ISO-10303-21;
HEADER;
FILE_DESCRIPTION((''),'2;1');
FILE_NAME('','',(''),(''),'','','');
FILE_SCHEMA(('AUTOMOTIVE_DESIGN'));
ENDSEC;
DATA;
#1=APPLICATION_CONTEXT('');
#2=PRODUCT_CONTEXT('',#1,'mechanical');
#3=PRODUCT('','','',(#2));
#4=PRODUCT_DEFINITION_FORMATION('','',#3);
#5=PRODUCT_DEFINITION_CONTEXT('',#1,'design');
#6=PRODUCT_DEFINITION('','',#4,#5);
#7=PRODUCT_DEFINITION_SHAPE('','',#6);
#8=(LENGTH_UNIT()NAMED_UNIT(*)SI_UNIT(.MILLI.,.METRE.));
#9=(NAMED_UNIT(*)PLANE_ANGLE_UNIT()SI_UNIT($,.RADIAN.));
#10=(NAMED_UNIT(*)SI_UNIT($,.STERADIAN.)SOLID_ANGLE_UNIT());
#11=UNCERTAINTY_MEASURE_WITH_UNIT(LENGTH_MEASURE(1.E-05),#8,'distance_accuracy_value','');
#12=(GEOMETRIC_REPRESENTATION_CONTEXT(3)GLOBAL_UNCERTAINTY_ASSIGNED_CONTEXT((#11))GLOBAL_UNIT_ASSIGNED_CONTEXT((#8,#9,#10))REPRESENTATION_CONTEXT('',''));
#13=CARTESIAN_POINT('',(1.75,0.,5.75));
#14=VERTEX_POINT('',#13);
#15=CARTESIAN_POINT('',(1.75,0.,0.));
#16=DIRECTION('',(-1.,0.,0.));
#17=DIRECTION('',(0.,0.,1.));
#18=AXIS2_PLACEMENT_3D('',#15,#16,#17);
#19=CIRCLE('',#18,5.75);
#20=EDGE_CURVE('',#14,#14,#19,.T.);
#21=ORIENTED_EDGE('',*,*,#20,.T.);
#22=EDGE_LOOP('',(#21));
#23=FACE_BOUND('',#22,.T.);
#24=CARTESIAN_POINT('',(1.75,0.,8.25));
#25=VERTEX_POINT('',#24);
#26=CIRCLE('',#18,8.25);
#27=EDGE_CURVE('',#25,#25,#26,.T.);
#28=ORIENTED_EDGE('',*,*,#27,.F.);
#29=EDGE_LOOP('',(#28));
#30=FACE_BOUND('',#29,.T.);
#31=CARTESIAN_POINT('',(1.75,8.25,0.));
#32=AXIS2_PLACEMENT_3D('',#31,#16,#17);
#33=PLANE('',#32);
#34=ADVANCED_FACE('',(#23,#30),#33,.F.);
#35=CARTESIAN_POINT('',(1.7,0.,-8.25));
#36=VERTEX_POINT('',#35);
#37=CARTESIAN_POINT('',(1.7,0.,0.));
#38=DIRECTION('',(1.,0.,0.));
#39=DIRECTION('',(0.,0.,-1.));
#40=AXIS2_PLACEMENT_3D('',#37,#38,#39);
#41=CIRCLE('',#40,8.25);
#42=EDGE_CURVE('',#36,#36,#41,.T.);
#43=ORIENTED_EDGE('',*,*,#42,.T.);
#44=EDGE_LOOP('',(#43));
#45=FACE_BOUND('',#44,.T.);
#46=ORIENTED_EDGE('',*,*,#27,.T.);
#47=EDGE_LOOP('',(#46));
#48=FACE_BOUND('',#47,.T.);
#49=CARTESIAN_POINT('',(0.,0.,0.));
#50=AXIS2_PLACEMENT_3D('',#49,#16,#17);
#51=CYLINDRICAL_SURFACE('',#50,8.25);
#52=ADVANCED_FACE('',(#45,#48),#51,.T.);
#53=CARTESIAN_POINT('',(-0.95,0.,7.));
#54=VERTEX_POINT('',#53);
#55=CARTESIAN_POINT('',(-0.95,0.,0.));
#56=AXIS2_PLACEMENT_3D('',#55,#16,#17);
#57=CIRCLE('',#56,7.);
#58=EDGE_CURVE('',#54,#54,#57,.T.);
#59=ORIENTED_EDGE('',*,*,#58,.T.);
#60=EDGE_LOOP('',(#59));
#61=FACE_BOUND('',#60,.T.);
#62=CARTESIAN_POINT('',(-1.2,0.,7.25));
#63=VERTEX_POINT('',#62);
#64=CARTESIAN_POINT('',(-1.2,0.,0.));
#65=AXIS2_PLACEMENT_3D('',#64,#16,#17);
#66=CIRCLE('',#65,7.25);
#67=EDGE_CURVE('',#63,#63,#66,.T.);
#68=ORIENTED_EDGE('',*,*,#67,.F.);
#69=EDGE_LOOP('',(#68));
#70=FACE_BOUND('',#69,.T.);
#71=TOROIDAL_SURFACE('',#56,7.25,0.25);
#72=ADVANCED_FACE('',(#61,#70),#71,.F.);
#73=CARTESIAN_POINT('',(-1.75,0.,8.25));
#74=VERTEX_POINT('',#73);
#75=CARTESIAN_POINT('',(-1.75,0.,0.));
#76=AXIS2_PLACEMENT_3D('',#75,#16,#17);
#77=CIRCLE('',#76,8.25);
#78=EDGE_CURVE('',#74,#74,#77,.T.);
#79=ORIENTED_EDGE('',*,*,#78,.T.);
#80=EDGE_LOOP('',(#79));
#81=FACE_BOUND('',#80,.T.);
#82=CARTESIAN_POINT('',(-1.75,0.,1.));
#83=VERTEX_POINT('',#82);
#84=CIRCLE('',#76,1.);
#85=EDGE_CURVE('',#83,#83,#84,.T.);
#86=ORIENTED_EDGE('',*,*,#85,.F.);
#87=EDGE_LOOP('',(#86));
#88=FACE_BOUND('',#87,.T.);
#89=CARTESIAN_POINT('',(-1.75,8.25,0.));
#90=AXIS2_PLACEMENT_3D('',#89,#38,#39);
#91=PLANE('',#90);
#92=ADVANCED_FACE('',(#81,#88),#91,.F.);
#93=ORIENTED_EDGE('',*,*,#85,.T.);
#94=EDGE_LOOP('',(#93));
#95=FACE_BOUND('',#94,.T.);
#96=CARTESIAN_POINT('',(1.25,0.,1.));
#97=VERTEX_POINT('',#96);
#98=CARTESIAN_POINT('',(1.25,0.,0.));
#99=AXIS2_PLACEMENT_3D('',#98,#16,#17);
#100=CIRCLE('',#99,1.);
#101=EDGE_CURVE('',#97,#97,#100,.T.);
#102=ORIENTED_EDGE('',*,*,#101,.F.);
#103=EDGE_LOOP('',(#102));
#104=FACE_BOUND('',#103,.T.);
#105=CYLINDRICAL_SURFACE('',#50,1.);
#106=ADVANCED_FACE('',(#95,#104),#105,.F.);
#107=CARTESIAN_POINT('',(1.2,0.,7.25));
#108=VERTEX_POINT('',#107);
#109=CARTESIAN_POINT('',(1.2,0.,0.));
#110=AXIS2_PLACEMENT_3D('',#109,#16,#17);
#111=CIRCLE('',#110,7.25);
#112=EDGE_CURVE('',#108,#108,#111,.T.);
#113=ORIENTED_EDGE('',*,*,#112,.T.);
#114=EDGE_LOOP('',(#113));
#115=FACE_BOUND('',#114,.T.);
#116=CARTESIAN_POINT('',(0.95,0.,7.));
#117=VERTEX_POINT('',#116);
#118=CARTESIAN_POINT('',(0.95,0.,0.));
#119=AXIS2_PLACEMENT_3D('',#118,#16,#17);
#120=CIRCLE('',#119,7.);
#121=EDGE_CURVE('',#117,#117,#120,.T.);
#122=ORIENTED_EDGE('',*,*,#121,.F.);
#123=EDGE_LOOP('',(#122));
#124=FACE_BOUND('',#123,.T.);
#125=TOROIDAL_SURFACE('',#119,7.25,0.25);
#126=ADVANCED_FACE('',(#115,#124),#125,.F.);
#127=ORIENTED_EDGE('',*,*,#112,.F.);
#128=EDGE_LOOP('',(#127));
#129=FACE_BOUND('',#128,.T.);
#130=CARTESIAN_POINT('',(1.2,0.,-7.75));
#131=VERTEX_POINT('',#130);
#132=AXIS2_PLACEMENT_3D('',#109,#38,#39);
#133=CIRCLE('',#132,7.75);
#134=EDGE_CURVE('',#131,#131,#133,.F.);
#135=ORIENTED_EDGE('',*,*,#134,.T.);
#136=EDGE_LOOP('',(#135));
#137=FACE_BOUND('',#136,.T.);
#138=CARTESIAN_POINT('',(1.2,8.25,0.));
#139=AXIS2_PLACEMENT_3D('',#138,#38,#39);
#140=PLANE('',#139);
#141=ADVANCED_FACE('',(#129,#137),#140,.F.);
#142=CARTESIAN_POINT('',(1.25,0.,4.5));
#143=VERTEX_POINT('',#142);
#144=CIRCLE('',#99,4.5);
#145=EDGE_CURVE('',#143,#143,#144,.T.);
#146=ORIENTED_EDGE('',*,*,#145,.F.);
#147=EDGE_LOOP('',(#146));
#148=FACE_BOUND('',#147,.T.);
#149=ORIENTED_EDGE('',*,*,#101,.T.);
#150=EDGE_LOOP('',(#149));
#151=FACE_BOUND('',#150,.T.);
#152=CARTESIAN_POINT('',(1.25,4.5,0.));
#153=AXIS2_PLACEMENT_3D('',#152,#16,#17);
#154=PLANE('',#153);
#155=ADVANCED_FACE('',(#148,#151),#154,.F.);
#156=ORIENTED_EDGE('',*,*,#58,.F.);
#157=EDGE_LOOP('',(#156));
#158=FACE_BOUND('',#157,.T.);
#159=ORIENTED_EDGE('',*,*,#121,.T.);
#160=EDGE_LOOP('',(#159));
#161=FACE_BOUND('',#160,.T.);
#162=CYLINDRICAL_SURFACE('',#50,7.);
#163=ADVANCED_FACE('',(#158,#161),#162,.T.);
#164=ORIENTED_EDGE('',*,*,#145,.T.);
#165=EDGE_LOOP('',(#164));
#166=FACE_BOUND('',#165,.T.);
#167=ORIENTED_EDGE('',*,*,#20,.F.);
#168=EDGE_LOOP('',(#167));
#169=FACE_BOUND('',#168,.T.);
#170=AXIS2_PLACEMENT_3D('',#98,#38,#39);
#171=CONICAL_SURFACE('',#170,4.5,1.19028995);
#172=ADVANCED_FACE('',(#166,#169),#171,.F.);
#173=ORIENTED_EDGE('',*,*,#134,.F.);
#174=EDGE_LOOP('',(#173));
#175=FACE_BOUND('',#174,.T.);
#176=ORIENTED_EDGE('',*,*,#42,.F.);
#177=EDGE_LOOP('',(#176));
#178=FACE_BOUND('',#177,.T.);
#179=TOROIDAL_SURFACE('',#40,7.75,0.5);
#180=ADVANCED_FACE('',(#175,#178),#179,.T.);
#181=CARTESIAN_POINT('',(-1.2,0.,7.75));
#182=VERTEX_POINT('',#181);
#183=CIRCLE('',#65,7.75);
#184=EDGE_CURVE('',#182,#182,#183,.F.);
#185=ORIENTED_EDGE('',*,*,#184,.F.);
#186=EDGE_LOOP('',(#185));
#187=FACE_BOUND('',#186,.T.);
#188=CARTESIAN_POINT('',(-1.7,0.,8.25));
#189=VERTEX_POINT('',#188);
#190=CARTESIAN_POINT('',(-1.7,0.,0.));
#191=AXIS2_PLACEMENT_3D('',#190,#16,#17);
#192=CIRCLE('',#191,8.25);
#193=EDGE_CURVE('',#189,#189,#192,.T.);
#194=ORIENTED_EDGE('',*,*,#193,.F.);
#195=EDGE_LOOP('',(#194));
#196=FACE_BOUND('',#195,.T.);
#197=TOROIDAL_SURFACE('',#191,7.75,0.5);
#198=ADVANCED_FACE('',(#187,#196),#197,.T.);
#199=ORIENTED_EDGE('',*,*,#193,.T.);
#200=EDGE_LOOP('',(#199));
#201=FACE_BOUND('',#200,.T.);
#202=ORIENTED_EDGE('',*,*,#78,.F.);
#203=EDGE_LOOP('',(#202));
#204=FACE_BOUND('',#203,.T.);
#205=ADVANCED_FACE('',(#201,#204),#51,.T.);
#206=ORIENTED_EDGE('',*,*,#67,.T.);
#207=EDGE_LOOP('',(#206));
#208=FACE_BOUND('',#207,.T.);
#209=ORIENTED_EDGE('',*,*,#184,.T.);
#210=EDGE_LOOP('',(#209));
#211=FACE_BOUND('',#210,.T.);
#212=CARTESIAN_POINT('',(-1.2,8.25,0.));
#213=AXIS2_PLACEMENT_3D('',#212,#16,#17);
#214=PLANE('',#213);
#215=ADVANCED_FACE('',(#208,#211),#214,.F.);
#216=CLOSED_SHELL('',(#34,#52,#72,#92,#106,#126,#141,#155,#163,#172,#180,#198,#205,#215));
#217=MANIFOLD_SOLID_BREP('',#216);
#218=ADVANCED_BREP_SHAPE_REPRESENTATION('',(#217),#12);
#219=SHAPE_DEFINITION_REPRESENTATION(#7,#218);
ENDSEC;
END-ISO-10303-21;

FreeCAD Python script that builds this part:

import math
import FreeCAD as App
import Part
import Sketcher


def edges_at(feature, points):
    """Names of the edges that pass closest to the given points."""
    edges = feature.Shape.Edges
    near = lambda p: min(range(len(edges)), key=lambda i: edges[i].distToShape(Part.Vertex(*p))[0])
    return sorted({f"Edge{near(p) + 1}" for p in points})

doc = App.newDocument("Part")
body = doc.addObject("PartDesign::Body", "Body")

sketch1 = body.newObject("Sketcher::SketchObject", "Sketch")
sketch1.AttachmentSupport = (doc.getObject("XY_Plane"), [""])
sketch1.MapMode = "FlatFace"
sketch1.addGeometry([
    Part.LineSegment(App.Vector(1.75, 8.25, 0), App.Vector(1.2, 8.25, 0)),
    Part.LineSegment(App.Vector(1.2, 8.25, 0), App.Vector(1.2, 7.25, 0)),
    Part.ArcOfCircle(Part.Circle(App.Vector(0.95, 7.25, 0), App.Vector(0, 0, 1), 0.25), math.radians(-90), math.radians(0)),
    Part.LineSegment(App.Vector(0.95, 7, 0), App.Vector(-0.95, 7, 0)),
    Part.ArcOfCircle(Part.Circle(App.Vector(-0.95, 7.25, 0), App.Vector(0, 0, 1), 0.25), math.radians(-180), math.radians(-90)),
    Part.LineSegment(App.Vector(-1.2, 7.25, 0), App.Vector(-1.2, 8.25, 0)),
    Part.LineSegment(App.Vector(-1.2, 8.25, 0), App.Vector(-1.75, 8.25, 0)),
    Part.LineSegment(App.Vector(-1.75, 8.25, 0), App.Vector(-1.75, 1, 0)),
    Part.LineSegment(App.Vector(-1.75, 1, 0), App.Vector(1.25, 1, 0)),
    Part.LineSegment(App.Vector(1.25, 1, 0), App.Vector(1.25, 4.5, 0)),
    Part.LineSegment(App.Vector(1.25, 4.5, 0), App.Vector(1.75, 5.75, 0)),
    Part.LineSegment(App.Vector(1.75, 5.75, 0), App.Vector(1.75, 8.25, 0)),
], False)
sketch1.addConstraint([
    Sketcher.Constraint("Coincident", 0, 2, 1, 1),
    Sketcher.Constraint("Tangent", 1, 2, 2, 2),
    Sketcher.Constraint("Tangent", 2, 1, 3, 1),
    Sketcher.Constraint("Tangent", 3, 2, 4, 2),
    Sketcher.Constraint("Tangent", 4, 1, 5, 1),
    Sketcher.Constraint("Coincident", 5, 2, 6, 1),
    Sketcher.Constraint("Coincident", 6, 2, 7, 1),
    Sketcher.Constraint("Coincident", 7, 2, 8, 1),
    Sketcher.Constraint("Coincident", 8, 2, 9, 1),
    Sketcher.Constraint("Coincident", 9, 2, 10, 1),
    Sketcher.Constraint("Coincident", 10, 2, 11, 1),
    Sketcher.Constraint("Coincident", 11, 2, 0, 1),
    Sketcher.Constraint("Horizontal", 0),
    Sketcher.Constraint("Vertical", 1),
    Sketcher.Constraint("Horizontal", 3),
    Sketcher.Constraint("Vertical", 5),
    Sketcher.Constraint("Horizontal", 6),
    Sketcher.Constraint("Vertical", 7),
    Sketcher.Constraint("Horizontal", 8),
    Sketcher.Constraint("Vertical", 9),
    Sketcher.Constraint("Vertical", 11),
    Sketcher.Constraint("Equal", 2, 4),
    Sketcher.Constraint("Symmetric", 0, 2, 5, 2, -2),
    Sketcher.Constraint("Equal", 0, 6),
    Sketcher.Constraint("DistanceX", 8, 1, 8, 2, 3.0),
    Sketcher.Constraint("DistanceY", 1, 2, 1, 1, 1.0),
    Sketcher.Constraint("Radius", 2, 0.25),
    Sketcher.Constraint("DistanceX", 3, 2, 3, 1, 1.9),
    Sketcher.Constraint("DistanceY", 9, 1, 9, 2, 3.5),
    Sketcher.Constraint("DistanceY", 11, 1, 11, 2, 2.5),
    Sketcher.Constraint("DistanceY", -1, 1, 2, 1, 7.0),
    Sketcher.Constraint("DistanceY", -1, 1, 7, 2, 1.0),
    Sketcher.Constraint("DistanceX", 0, 2, 0, 1, 0.55),
])
revolution = body.newObject("PartDesign::Revolution", "Revolution")
revolution.Profile = sketch1
revolution.ReferenceAxis = (sketch1, ["H_Axis"])
revolution.Angle = 360
doc.recompute()

fillet = body.newObject("PartDesign::Fillet", "Fillet")
fillet.Base = (revolution, edges_at(revolution, [(1.2, -8.25, 0), (-1.2, -8.25, 0)]))
fillet.Radius = 0.5

doc.recompute()
